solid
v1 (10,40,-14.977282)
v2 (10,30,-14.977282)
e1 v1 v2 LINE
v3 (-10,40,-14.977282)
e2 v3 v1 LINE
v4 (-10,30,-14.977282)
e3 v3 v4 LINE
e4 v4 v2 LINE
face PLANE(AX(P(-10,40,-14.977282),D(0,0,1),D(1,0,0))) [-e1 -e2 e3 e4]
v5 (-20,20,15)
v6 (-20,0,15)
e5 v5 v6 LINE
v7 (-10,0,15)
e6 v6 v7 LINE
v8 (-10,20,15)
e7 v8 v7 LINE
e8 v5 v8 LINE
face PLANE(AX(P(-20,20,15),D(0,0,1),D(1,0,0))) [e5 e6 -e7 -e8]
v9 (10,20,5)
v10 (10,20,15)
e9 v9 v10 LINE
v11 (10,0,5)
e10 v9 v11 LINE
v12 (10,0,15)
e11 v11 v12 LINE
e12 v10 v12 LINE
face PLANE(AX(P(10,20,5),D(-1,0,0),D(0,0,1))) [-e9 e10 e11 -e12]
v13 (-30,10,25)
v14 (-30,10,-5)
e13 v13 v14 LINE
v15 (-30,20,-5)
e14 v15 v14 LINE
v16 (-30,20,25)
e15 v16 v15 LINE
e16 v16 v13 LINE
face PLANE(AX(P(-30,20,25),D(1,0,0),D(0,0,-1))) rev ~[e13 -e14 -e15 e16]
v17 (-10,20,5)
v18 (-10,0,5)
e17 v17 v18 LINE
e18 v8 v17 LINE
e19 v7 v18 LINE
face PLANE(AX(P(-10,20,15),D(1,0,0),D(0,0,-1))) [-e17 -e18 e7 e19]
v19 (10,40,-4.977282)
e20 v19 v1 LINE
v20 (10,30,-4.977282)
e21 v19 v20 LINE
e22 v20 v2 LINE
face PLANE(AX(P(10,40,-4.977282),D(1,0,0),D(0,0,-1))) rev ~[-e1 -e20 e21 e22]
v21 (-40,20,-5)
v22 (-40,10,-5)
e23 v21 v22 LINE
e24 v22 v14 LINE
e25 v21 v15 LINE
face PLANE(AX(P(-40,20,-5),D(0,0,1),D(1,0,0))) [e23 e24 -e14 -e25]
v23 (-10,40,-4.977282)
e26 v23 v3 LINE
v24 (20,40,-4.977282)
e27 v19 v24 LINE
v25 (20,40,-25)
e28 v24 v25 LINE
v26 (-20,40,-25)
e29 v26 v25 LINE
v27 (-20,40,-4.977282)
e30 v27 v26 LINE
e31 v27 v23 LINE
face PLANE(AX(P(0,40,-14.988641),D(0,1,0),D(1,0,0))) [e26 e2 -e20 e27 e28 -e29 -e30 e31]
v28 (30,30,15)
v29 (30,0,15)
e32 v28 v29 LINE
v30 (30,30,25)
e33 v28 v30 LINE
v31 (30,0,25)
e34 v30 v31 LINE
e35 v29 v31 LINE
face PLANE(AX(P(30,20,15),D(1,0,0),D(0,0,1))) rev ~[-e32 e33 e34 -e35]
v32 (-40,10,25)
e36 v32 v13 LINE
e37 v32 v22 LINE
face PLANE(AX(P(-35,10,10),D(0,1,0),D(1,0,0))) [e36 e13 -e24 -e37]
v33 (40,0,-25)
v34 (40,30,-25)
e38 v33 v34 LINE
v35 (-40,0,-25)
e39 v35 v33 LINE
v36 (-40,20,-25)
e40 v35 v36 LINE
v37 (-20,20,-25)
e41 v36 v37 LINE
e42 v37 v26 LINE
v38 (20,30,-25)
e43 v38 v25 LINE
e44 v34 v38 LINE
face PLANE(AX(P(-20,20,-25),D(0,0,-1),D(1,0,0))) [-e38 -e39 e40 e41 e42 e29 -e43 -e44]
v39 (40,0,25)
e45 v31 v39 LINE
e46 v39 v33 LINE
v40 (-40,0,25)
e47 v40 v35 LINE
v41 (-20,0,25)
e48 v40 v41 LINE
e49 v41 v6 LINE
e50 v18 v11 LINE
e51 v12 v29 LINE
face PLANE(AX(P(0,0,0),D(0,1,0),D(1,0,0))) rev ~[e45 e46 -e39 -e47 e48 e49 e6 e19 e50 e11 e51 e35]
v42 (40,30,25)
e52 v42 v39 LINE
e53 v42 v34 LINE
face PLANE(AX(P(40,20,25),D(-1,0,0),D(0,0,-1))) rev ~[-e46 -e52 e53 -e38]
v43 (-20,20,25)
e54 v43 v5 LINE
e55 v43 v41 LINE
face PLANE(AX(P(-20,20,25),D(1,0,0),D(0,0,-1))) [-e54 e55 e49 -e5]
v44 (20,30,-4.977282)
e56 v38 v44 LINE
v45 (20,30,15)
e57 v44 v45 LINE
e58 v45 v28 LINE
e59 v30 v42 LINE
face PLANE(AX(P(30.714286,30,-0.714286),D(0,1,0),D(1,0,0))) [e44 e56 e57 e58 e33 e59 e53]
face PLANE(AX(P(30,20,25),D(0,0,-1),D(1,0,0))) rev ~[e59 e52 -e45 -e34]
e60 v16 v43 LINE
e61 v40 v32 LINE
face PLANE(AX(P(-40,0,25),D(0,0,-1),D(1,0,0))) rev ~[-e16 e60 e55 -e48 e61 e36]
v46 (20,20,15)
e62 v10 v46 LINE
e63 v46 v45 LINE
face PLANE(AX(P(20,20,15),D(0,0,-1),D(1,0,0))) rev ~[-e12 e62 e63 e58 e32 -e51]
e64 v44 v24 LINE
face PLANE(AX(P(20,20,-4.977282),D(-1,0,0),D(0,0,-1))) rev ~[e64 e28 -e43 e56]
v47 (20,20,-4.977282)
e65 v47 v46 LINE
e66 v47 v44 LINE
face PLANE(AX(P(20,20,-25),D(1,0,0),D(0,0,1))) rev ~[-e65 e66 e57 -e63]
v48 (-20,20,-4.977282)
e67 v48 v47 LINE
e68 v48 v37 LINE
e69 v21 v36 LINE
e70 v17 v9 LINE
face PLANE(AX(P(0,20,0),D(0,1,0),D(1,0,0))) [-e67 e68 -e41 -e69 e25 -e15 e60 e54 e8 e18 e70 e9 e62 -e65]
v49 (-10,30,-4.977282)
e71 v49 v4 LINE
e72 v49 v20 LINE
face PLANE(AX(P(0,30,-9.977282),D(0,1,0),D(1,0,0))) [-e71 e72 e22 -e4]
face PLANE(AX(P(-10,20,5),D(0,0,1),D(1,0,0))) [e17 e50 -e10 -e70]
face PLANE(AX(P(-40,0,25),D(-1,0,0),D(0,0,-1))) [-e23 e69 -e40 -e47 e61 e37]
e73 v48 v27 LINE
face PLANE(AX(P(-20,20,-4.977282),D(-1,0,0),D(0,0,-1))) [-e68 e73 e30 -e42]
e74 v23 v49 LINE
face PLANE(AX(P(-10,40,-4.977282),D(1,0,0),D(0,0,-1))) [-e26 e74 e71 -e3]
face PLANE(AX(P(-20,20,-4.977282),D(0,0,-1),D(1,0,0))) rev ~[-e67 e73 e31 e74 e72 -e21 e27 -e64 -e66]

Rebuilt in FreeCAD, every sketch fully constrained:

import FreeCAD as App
import Part
import Sketcher

V = App.Vector
Q = App.Units.Quantity


def add_polygon(sketch, points):
    """Adds a closed chain of lines whose ends are joined by coincident constraints."""
    first, n = sketch.GeometryCount, len(points)
    for a, b in zip(points, points[1:] + points[:1]):
        sketch.addGeometry(Part.LineSegment(App.Vector(*a, 0), App.Vector(*b, 0)), False)
    for i in range(n):
        sketch.addConstraint(Sketcher.Constraint("Coincident", first + i, 2, first + (i + 1) % n, 1))

doc = App.newDocument("Part")
body = doc.addObject("PartDesign::Body", "Body")

# Sketch on XZ plane
sketch1 = doc.addObject("Sketcher::SketchObject", "Sketch")
body.addObject(sketch1)
sketch1.AttachmentSupport = (doc.XZ_Plane, [""])
sketch1.MapMode = "FlatFace"
add_polygon(sketch1, [(-40, -25), (-40, 25), (40, 25), (40, -25)])  # lines 0-3
sketch1.addConstraint([
    Sketcher.Constraint("Vertical", 0),
    Sketcher.Constraint("Horizontal", 1),
    Sketcher.Constraint("Vertical", 2),
    Sketcher.Constraint("Horizontal", 3),
    Sketcher.Constraint("Symmetric", 0, 2, 2, 2, -1, 1),
    Sketcher.Constraint("DistanceX", 1, 1, 1, 2, Q("80 mm")),
    Sketcher.Constraint("DistanceY", 0, 1, 0, 2, Q("50 mm")),
])
pad1 = doc.addObject("PartDesign::Pad", "Pad")
body.addObject(pad1)
pad1.Profile = sketch1
pad1.Length = 20
pad1.Reversed = True

# Sketch on XZ plane
sketch2 = doc.addObject("Sketcher::SketchObject", "Sketch001")
body.addObject(sketch2)
sketch2.AttachmentSupport = (doc.XZ_Plane, [""])
sketch2.MapMode = "FlatFace"
sketch2.AttachmentOffset = App.Placement(V(0, 0, -20), App.Rotation())
add_polygon(sketch2, [(-20, 15), (-20, 25), (30, 25), (30, 15), (10, 15), (10, 5), (-10, 5), (-10, 15)])  # lines 0-7
sketch2.addConstraint([
    Sketcher.Constraint("Vertical", 0),
    Sketcher.Constraint("Horizontal", 1),
    Sketcher.Constraint("Vertical", 2),
    Sketcher.Constraint("Horizontal", 3),
    Sketcher.Constraint("Vertical", 4),
    Sketcher.Constraint("Horizontal", 5),
    Sketcher.Constraint("Vertical", 6),
    Sketcher.Constraint("Horizontal", 7),
    Sketcher.Constraint("Symmetric", 3, 2, 6, 2, -2),
    Sketcher.Constraint("Equal", 3, 5),
    Sketcher.Constraint("Equal", 7, 0),
    Sketcher.Constraint("Equal", 2, 4),
    Sketcher.Constraint("DistanceX", 1, 1, 1, 2, Q("50 mm")),
    Sketcher.Constraint("DistanceX", 3, 2, 3, 1, Q("20 mm")),
    Sketcher.Constraint("DistanceY", -1, 1, 0, 2, Q("25 mm")),
])
pocket1 = doc.addObject("PartDesign::Pocket", "Pocket")
body.addObject(pocket1)
pocket1.Profile = sketch2
pocket1.Length = 20
pocket1.Reversed = True

# Sketch on XZ plane
sketch3 = doc.addObject("Sketcher::SketchObject", "Sketch002")
body.addObject(sketch3)
sketch3.AttachmentSupport = (doc.XZ_Plane, [""])
sketch3.MapMode = "FlatFace"
sketch3.AttachmentOffset = App.Placement(V(0, 0, -20), App.Rotation())
add_polygon(sketch3, [(-40, -5), (-40, 25), (-30, 25), (-30, -5)])  # lines 0-3
sketch3.addConstraint([
    Sketcher.Constraint("Vertical", 0),
    Sketcher.Constraint("Horizontal", 1),
    Sketcher.Constraint("Vertical", 2),
    Sketcher.Constraint("Horizontal", 3),
    Sketcher.Constraint("DistanceX", 1, 1, 1, 2, Q("10 mm")),
    Sketcher.Constraint("DistanceY", 0, 1, 0, 2, Q("30 mm")),
    Sketcher.Constraint("DistanceX", 0, 2, -1, 1, Q("40 mm")),
    Sketcher.Constraint("DistanceY", -1, 1, 0, 2, Q("25 mm")),
])
pocket2 = doc.addObject("PartDesign::Pocket", "Pocket001")
body.addObject(pocket2)
pocket2.Profile = sketch3
pocket2.Length = 10
pocket2.Reversed = True

# Sketch on XZ plane
sketch4 = doc.addObject("Sketcher::SketchObject", "Sketch003")
body.addObject(sketch4)
sketch4.AttachmentSupport = (doc.XZ_Plane, [""])
sketch4.MapMode = "FlatFace"
sketch4.AttachmentOffset = App.Placement(V(0, 0, -20), App.Rotation())
add_polygon(sketch4, [(40, 25), (40, -25), (20, -25), (20, 15), (30, 15), (30, 25)])  # lines 0-5
sketch4.addConstraint([
    Sketcher.Constraint("Vertical", 0),
    Sketcher.Constraint("Horizontal", 1),
    Sketcher.Constraint("Vertical", 2),
    Sketcher.Constraint("Horizontal", 3),
    Sketcher.Constraint("Vertical", 4),
    Sketcher.Constraint("Horizontal", 5),
    Sketcher.Constraint("Equal", 3, 5),
    Sketcher.Constraint("Equal", 5, 4),
    Sketcher.Constraint("DistanceX", 1, 2, 1, 1, Q("20 mm")),
    Sketcher.Constraint("DistanceY", 0, 2, 0, 1, Q("50 mm")),
    Sketcher.Constraint("DistanceX", -1, 1, 0, 2, Q("40 mm")),
    Sketcher.Constraint("DistanceY", 0, 2, -1, 1, Q("25 mm")),
])
pad2 = doc.addObject("PartDesign::Pad", "Pad001")
body.addObject(pad2)
pad2.Profile = sketch4
pad2.Length = 10
pad2.Reversed = True

# Sketch on XZ plane
sketch5 = doc.addObject("Sketcher::SketchObject", "Sketch004")
body.addObject(sketch5)
sketch5.AttachmentSupport = (doc.XZ_Plane, [""])
sketch5.MapMode = "FlatFace"
sketch5.AttachmentOffset = App.Placement(V(0, 0, -20), App.Rotation())
add_polygon(sketch5, [(-20, -25), (-20, -5), (20, -5), (20, -25)])  # lines 0-3
sketch5.addConstraint([
    Sketcher.Constraint("Vertical", 0),
    Sketcher.Constraint("Horizontal", 1),
    Sketcher.Constraint("Vertical", 2),
    Sketcher.Constraint("Horizontal", 3),
    Sketcher.Constraint("DistanceX", 1, 1, 1, 2, Q("40 mm")),
    Sketcher.Constraint("DistanceX", 0, 2, -1, 1, Q("20 mm")),
    Sketcher.Constraint("DistanceY", 2, 2, -1, 1, Q("25 mm")),
    Sketcher.Constraint("DistanceY", 0, 1, 0, 2, Q("20.022718 mm")),
])
pad3 = doc.addObject("PartDesign::Pad", "Pad002")
body.addObject(pad3)
pad3.Profile = sketch5
pad3.Length = 20
pad3.Reversed = True

# Sketch on XZ plane
sketch6 = doc.addObject("Sketcher::SketchObject", "Sketch005")
body.addObject(sketch6)
sketch6.AttachmentSupport = (doc.XZ_Plane, [""])
sketch6.MapMode = "FlatFace"
sketch6.AttachmentOffset = App.Placement(V(0, 0, -40), App.Rotation())
add_polygon(sketch6, [(-10, -15), (-10, -5), (10, -5), (10, -15)])  # lines 0-3
sketch6.addConstraint([
    Sketcher.Constraint("Vertical", 0),
    Sketcher.Constraint("Horizontal", 1),
    Sketcher.Constraint("Vertical", 2),
    Sketcher.Constraint("Horizontal", 3),
    Sketcher.Constraint("DistanceX", 1, 1, 1, 2, Q("20 mm")),
    Sketcher.Constraint("DistanceY", 0, 1, 0, 2, Q("10 mm")),
    Sketcher.Constraint("DistanceX", 0, 2, -1, 1, Q("10 mm")),
    Sketcher.Constraint("DistanceY", 0, 2, -1, 1, Q("4.977282 mm")),
])
pocket3 = doc.addObject("PartDesign::Pocket", "Pocket002")
body.addObject(pocket3)
pocket3.Profile = sketch6
pocket3.Length = 10
pocket3.Reversed = True

doc.recompute()
